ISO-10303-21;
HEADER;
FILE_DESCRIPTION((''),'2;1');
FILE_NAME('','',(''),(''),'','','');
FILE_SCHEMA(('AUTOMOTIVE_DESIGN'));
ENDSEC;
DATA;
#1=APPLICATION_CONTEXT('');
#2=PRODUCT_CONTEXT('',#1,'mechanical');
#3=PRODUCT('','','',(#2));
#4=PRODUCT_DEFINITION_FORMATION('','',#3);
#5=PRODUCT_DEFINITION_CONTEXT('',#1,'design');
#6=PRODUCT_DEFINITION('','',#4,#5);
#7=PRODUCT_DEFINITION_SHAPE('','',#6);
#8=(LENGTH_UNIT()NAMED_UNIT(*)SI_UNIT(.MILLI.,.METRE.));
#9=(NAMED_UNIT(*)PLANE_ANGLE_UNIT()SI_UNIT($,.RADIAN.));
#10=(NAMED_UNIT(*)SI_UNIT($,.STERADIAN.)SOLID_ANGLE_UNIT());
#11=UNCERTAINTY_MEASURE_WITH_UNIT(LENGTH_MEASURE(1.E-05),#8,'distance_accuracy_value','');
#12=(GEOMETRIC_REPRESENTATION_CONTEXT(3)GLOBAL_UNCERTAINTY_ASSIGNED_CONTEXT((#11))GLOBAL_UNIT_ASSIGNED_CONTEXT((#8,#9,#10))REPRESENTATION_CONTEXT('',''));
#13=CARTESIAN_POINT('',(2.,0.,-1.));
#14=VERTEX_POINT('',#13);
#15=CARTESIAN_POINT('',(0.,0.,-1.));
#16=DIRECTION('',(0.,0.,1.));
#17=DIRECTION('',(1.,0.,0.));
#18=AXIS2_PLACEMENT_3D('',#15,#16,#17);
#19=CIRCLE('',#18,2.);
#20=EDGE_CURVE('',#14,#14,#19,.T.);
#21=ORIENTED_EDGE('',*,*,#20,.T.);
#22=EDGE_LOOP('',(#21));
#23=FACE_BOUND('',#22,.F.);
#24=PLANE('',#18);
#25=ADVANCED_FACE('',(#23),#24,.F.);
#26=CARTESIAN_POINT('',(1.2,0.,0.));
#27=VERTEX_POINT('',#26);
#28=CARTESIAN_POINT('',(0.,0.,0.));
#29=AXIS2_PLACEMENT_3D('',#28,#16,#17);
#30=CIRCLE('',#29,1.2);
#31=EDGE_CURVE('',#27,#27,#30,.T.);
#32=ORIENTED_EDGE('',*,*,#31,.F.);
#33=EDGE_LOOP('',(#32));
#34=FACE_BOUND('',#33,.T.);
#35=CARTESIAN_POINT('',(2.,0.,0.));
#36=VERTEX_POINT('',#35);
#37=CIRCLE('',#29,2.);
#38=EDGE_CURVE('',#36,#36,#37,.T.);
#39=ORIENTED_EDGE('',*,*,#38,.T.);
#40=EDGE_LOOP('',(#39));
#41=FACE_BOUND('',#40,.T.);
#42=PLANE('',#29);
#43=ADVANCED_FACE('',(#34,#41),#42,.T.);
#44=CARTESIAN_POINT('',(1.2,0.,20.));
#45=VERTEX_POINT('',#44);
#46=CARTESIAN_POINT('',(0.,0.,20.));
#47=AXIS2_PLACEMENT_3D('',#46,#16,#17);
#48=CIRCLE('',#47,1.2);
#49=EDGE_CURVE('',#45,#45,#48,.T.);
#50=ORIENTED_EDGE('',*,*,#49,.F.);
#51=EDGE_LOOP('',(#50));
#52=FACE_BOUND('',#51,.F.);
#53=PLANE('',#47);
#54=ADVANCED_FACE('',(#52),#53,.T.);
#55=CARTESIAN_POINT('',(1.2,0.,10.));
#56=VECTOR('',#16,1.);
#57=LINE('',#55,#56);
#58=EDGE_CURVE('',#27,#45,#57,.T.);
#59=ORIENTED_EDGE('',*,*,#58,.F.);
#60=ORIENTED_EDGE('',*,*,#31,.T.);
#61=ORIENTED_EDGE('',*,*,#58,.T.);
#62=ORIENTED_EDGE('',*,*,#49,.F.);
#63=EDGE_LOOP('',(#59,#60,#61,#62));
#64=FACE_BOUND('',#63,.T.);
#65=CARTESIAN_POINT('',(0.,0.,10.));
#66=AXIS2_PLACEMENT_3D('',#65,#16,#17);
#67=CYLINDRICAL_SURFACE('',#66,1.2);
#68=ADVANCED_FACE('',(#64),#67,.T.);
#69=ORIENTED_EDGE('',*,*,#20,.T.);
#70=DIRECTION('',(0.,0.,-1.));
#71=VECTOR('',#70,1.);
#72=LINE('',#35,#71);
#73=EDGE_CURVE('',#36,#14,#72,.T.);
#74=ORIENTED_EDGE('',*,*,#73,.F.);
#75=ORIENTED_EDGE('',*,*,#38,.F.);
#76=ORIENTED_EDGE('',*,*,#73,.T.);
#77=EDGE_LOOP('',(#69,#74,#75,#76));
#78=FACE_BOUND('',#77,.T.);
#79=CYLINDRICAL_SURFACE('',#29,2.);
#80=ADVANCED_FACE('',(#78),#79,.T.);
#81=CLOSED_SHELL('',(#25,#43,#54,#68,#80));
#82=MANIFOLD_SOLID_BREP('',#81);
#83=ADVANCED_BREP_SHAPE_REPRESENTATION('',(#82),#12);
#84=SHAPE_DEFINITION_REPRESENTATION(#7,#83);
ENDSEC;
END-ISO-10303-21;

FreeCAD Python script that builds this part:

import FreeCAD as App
import Part
import Sketcher

V = App.Vector


def add_polygon(sketch, points):
    """Adds a closed chain of lines whose ends are joined by coincident constraints."""
    first, n = sketch.GeometryCount, len(points)
    for a, b in zip(points, points[1:] + points[:1]):
        sketch.addGeometry(Part.LineSegment(App.Vector(*a, 0), App.Vector(*b, 0)), False)
    for i in range(n):
        sketch.addConstraint(Sketcher.Constraint("Coincident", first + i, 2, first + (i + 1) % n, 1))

doc = App.newDocument("Part")
params = doc.addObject("Spreadsheet::Sheet", "Params")
for row, (alias, value) in enumerate([
    ("sketch1_height", "20 mm"),
    ("sketch1_width", "1.2 mm"),
    ("revolution_angle", "360 deg"),
    ("sketch2_diameter", "4 mm"),
    ("pad1_length", "1 mm"),
], start=1):
    params.set(f"A{row}", alias)
    params.set(f"B{row}", "=" + value)
    params.setAlias(f"B{row}", alias)

body = doc.addObject("PartDesign::Body", "Body")

sketch1 = body.newObject("Sketcher::SketchObject", "Sketch")
sketch1.AttachmentSupport = (doc.getObject("XZ_Plane"), [""])
sketch1.MapMode = "FlatFace"
add_polygon(sketch1, [(0, 20), (0, 0), (1.2, 0), (1.2, 20)])
sketch1.addConstraint([
    Sketcher.Constraint("Vertical", 0),
    Sketcher.Constraint("Horizontal", 1),
    Sketcher.Constraint("Vertical", 2),
    Sketcher.Constraint("Horizontal", 3),
    Sketcher.Constraint("Coincident", 0, 2, -1, 1),
    Sketcher.Constraint("DistanceY", 0, 2, 0, 1, 20.0),
    Sketcher.Constraint("DistanceX", 1, 1, 1, 2, 1.2),
])
sketch1.setExpression("Constraints[9]", "Params.sketch1_height")
sketch1.setExpression("Constraints[10]", "Params.sketch1_width")
revolution = body.newObject("PartDesign::Revolution", "Revolution")
revolution.Profile = sketch1
revolution.ReferenceAxis = (sketch1, ["V_Axis"])
revolution.setExpression("Angle", "Params.revolution_angle")

sketch2 = body.newObject("Sketcher::SketchObject", "Sketch001")
sketch2.AttachmentSupport = (doc.getObject("XY_Plane"), [""])
sketch2.MapMode = "FlatFace"
sketch2.addGeometry(Part.Circle(V(0, 0, 0), V(0, 0, 1), 2), False)
sketch2.addConstraint([
    Sketcher.Constraint("Coincident", 0, 3, -1, 1),
    Sketcher.Constraint("Diameter", 0, 4.0),
])
sketch2.setExpression("Constraints[1]", "Params.sketch2_diameter")
pad1 = body.newObject("PartDesign::Pad", "Pad")
pad1.Profile = sketch2
pad1.setExpression("Length", "Params.pad1_length")
pad1.Reversed = True

doc.recompute()
